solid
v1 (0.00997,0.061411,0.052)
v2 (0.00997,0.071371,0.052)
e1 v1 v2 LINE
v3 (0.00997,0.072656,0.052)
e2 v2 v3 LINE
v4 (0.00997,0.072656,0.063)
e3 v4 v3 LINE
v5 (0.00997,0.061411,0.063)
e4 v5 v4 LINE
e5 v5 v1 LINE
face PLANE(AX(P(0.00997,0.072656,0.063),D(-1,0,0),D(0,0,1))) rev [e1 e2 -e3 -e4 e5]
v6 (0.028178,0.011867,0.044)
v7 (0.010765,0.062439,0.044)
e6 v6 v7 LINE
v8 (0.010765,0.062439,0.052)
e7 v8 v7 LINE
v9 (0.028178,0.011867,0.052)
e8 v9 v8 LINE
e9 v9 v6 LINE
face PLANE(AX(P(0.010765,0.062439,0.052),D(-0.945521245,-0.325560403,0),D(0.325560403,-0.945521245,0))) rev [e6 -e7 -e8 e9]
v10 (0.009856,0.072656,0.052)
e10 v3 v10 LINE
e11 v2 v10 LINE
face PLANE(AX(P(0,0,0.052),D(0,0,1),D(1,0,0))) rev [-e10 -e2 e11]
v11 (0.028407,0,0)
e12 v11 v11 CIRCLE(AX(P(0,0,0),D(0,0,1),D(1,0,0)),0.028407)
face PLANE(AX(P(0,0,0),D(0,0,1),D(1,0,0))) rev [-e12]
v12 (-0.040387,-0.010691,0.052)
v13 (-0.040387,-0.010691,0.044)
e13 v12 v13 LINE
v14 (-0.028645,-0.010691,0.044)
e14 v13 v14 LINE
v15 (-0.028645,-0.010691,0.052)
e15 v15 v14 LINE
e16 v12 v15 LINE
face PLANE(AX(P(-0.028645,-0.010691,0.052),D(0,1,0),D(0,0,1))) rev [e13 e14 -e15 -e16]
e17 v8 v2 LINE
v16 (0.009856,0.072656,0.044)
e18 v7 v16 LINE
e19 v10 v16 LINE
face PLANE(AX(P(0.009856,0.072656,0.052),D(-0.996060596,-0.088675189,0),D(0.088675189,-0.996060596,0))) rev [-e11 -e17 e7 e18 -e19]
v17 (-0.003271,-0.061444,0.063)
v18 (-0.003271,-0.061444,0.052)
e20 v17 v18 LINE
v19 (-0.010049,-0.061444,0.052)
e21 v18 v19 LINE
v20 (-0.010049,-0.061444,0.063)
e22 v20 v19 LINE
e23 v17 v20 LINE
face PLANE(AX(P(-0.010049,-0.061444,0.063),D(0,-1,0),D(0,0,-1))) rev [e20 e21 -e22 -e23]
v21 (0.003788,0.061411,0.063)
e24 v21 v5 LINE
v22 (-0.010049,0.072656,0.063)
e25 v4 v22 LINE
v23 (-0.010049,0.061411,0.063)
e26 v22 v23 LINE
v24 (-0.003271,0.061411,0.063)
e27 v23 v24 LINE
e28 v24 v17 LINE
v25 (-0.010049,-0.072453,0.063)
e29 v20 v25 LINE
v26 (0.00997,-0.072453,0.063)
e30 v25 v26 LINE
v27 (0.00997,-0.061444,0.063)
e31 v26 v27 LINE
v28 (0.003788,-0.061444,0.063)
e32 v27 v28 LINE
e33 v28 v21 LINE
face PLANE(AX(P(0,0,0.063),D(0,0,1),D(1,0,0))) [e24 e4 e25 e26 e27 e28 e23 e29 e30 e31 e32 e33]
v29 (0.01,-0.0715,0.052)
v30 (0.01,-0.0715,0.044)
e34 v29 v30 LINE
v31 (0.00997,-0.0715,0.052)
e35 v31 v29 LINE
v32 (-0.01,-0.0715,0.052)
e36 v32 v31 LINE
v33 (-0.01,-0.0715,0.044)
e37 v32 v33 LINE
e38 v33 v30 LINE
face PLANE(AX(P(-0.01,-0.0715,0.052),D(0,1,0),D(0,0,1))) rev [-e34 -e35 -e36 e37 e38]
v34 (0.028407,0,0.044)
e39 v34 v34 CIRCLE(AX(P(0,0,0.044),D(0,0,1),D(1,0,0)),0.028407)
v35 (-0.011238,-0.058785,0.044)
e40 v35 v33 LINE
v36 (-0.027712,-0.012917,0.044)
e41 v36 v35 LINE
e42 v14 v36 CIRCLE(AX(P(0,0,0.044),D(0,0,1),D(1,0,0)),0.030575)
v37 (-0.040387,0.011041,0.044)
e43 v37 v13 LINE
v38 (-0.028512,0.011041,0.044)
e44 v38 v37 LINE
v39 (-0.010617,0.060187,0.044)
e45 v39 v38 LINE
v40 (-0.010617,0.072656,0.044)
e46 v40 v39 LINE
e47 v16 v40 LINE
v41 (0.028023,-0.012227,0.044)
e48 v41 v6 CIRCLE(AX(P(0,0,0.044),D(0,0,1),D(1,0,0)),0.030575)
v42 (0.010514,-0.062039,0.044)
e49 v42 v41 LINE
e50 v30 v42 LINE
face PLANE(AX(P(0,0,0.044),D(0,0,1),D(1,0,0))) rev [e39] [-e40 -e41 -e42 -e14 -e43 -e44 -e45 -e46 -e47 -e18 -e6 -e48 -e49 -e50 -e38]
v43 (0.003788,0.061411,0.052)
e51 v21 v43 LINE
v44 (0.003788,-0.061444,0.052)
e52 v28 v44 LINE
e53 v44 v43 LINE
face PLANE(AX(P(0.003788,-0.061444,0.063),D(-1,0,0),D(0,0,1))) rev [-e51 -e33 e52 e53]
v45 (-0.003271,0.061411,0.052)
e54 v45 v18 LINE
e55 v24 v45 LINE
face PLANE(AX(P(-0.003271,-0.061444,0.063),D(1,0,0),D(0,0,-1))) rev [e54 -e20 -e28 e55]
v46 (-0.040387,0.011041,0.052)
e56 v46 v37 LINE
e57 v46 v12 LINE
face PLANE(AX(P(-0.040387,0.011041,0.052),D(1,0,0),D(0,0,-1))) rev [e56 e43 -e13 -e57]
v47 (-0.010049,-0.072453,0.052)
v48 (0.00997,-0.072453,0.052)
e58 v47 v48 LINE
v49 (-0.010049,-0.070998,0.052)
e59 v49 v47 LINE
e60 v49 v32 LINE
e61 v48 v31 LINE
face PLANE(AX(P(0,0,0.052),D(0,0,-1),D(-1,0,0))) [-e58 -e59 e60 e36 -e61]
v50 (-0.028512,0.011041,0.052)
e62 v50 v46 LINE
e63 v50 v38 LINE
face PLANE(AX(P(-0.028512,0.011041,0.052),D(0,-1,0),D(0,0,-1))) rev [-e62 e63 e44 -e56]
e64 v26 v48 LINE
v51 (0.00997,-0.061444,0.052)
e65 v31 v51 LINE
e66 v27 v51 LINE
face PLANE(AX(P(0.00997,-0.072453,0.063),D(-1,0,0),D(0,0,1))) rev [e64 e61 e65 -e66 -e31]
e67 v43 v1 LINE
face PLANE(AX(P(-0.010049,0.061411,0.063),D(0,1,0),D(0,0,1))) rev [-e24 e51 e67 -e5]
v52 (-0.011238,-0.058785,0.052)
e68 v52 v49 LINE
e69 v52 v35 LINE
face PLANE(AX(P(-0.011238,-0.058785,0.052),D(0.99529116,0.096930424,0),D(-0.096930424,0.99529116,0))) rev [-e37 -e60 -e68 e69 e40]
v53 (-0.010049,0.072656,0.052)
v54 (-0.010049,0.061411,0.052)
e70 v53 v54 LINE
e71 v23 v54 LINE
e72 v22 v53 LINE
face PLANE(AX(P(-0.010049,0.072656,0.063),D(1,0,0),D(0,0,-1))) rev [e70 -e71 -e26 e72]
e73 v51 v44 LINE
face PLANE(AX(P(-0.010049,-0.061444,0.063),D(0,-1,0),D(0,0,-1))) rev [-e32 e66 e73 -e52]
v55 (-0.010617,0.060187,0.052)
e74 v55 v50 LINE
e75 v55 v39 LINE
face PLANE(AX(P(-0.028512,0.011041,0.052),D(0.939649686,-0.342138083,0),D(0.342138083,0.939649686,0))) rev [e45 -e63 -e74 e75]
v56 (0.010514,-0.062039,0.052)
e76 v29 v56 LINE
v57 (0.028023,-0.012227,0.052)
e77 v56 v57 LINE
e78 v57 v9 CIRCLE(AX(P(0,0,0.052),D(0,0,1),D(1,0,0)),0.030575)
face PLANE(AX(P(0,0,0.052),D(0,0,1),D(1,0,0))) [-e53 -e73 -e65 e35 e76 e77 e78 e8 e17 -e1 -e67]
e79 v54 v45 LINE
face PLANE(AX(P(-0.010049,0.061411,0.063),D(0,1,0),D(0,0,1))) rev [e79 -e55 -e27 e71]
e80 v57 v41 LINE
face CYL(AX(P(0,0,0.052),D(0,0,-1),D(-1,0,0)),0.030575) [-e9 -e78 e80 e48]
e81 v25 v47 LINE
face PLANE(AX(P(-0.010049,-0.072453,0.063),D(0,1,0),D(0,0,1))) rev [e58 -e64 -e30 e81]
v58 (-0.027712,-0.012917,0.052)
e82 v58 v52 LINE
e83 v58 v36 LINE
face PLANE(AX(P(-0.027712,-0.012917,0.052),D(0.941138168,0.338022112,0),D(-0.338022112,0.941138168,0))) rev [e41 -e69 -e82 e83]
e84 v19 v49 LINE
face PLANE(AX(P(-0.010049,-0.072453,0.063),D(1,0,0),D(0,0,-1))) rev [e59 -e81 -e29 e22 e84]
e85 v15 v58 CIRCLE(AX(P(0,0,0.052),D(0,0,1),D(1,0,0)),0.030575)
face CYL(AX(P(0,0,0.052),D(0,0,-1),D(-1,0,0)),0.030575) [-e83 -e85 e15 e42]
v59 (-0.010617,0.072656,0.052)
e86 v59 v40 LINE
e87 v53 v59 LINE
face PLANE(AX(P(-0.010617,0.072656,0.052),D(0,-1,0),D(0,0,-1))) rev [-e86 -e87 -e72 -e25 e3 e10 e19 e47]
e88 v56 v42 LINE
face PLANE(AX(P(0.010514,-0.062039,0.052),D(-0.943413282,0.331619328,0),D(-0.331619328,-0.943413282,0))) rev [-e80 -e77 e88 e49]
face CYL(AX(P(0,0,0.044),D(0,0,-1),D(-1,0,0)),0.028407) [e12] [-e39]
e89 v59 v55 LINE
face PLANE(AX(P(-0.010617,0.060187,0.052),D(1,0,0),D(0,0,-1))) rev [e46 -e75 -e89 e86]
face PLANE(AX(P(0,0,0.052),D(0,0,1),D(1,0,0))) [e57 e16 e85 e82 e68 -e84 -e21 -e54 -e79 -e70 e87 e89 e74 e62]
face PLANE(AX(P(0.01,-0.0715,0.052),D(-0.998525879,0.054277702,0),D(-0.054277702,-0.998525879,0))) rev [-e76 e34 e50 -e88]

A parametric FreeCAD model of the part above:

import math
import FreeCAD as App
import Part
import Sketcher

V = App.Vector


def add_polygon(sketch, points):
    """Adds a closed chain of lines whose ends are joined by coincident constraints."""
    first, n = sketch.GeometryCount, len(points)
    for a, b in zip(points, points[1:] + points[:1]):
        sketch.addGeometry(Part.LineSegment(App.Vector(*a, 0), App.Vector(*b, 0)), False)
    for i in range(n):
        sketch.addConstraint(Sketcher.Constraint("Coincident", first + i, 2, first + (i + 1) % n, 1))

doc = App.newDocument("Part")
body = doc.addObject("PartDesign::Body", "Body")

# Sketch on XY plane
sketch1 = doc.addObject("Sketcher::SketchObject", "Sketch")
body.addObject(sketch1)
sketch1.AttachmentSupport = (doc.XY_Plane, [""])
sketch1.MapMode = "FlatFace"
sketch1.addGeometry(Part.Circle(V(0, 0, 0), V(0, 0, 1), 0.028), False)
sketch1.addConstraint([
    Sketcher.Constraint("Coincident", 0, 3, -1, 1),
    Sketcher.Constraint("Diameter", 0, 0.056813),
])
pad1 = doc.addObject("PartDesign::Pad", "Pad")
body.addObject(pad1)
pad1.Profile = sketch1
pad1.Length = 0.044

# Sketch on XY plane
sketch2 = doc.addObject("Sketcher::SketchObject", "Sketch001")
body.addObject(sketch2)
sketch2.AttachmentSupport = (doc.XY_Plane, [""])
sketch2.MapMode = "FlatFace"
sketch2.AttachmentOffset = App.Placement(V(0, 0, 0.044), App.Rotation())
sketch2.addGeometry([
    Part.LineSegment(V(-0.0106, 0.0602, 0), V(-0.0285, 0.011, 0)),  # 0
    Part.LineSegment(V(-0.0285, 0.011, 0), V(-0.0404, 0.011, 0)),  # 1
    Part.LineSegment(V(-0.0404, 0.011, 0), V(-0.0404, -0.0107, 0)),  # 2
    Part.LineSegment(V(-0.0404, -0.0107, 0), V(-0.0286, -0.0107, 0)),  # 3
    Part.ArcOfCircle(Part.Circle(V(0, 0, 0), V(0, 0, 1), 0.0306), math.radians(-159.53), math.radians(-155.01)),  # 4
    Part.LineSegment(V(-0.0277, -0.0129, 0), V(-0.0112, -0.0588, 0)),  # 5
    Part.LineSegment(V(-0.0112, -0.0588, 0), V(-0.01, -0.0715, 0)),  # 6
    Part.LineSegment(V(-0.01, -0.0715, 0), V(0.01, -0.0715, 0)),  # 7
    Part.LineSegment(V(0.01, -0.0715, 0), V(0.0105, -0.062, 0)),  # 8
    Part.LineSegment(V(0.0105, -0.062, 0), V(0.028, -0.0122, 0)),  # 9
    Part.ArcOfCircle(Part.Circle(V(0, 0, 0), V(0, 0, 1), 0.0306), math.radians(-24), math.radians(23)),  # 10
    Part.LineSegment(V(0.0282, 0.0119, 0), V(0.0108, 0.0624, 0)),  # 11
    Part.LineSegment(V(0.0108, 0.0624, 0), V(0.0099, 0.0727, 0)),  # 12
    Part.LineSegment(V(0.0099, 0.0727, 0), V(-0.0106, 0.0727, 0)),  # 13
    Part.LineSegment(V(-0.0106, 0.0727, 0), V(-0.0106, 0.0602, 0)),  # 14
], False)
sketch2.addConstraint([
    Sketcher.Constraint("Coincident", 0, 2, 1, 1),
    Sketcher.Constraint("Coincident", 1, 2, 2, 1),
    Sketcher.Constraint("Coincident", 2, 2, 3, 1),
    Sketcher.Constraint("Coincident", 3, 2, 4, 1),
    Sketcher.Constraint("Coincident", 4, 2, 5, 1),
    Sketcher.Constraint("Coincident", 5, 2, 6, 1),
    Sketcher.Constraint("Coincident", 6, 2, 7, 1),
    Sketcher.Constraint("Coincident", 7, 2, 8, 1),
    Sketcher.Constraint("Coincident", 8, 2, 9, 1),
    Sketcher.Constraint("Coincident", 9, 2, 10, 1),
    Sketcher.Constraint("Coincident", 10, 2, 11, 1),
    Sketcher.Constraint("Coincident", 11, 2, 12, 1),
    Sketcher.Constraint("Coincident", 12, 2, 13, 1),
    Sketcher.Constraint("Coincident", 13, 2, 14, 1),
    Sketcher.Constraint("Coincident", 14, 2, 0, 1),
    Sketcher.Constraint("Horizontal", 1),
    Sketcher.Constraint("Vertical", 2),
    Sketcher.Constraint("Horizontal", 3),
    Sketcher.Constraint("Horizontal", 7),
    Sketcher.Constraint("Horizontal", 13),
    Sketcher.Constraint("Vertical", 14),
    Sketcher.Constraint("Coincident", 4, 3, -1, 1),
    Sketcher.Constraint("Coincident", 10, 3, -1, 1),
    Sketcher.Constraint("Equal", 4, 10),
    Sketcher.Constraint("DistanceX", 7, 1, 7, 2, 0.02),
    Sketcher.Constraint("DistanceX", 6, 2, -1, 1, 0.01),
    Sketcher.Constraint("Radius", 4, 0.030575),
    Sketcher.Constraint("Distance", 9, 0.052799),
    Sketcher.Constraint("DistanceX", 3, 1, 3, 2, 0.011742),
    Sketcher.Constraint("DistanceY", 2, 2, 2, 1, 0.021732),
    Sketcher.Constraint("DistanceY", 14, 2, 14, 1, 0.01247),
    Sketcher.Constraint("DistanceY", 6, 2, -1, 1, 0.0715),
    Sketcher.Constraint("DistanceX", 0, 2, 4, 2, 0.000799),
    Sketcher.Constraint("DistanceY", 0, 2, 11, 2, 0.051398),
    Sketcher.Constraint("DistanceX", 1, 2, 1, 1, 0.011875),
    Sketcher.Constraint("DistanceX", 13, 2, 13, 1, 0.020473),
    Sketcher.Constraint("DistanceX", 0, 2, -1, 1, 0.028512),
    Sketcher.Constraint("DistanceX", 5, 2, -1, 1, 0.011238),
    Sketcher.Constraint("DistanceY", 8, 2, -1, 1, 0.062039),
    Sketcher.Constraint("DistanceY", 5, 2, 4, 2, 0.045868),
    Sketcher.Constraint("DistanceX", 8, 2, 9, 2, 0.017509),
    Sketcher.Constraint("DistanceX", 0, 2, 10, 2, 0.05669),
    Sketcher.Constraint("DistanceX", 1, 2, 11, 2, 0.051152),
    Sketcher.Constraint("DistanceX", 12, 2, 11, 2, 0.00091),
    Sketcher.Constraint("DistanceY", 10, 2, 12, 2, 0.060789),
])
pad2 = doc.addObject("PartDesign::Pad", "Pad001")
body.addObject(pad2)
pad2.Profile = sketch2
pad2.Length = 0.008

# Sketch on XY plane
sketch3 = doc.addObject("Sketcher::SketchObject", "Sketch002")
body.addObject(sketch3)
sketch3.AttachmentSupport = (doc.XY_Plane, [""])
sketch3.MapMode = "FlatFace"
sketch3.AttachmentOffset = App.Placement(V(0, 0, 0.052), App.Rotation())
add_polygon(sketch3, [(-0.01, 0.073), (-0.01, 0.061), (0.01, 0.061), (0.01, 0.073)])  # lines 0-3
add_polygon(sketch3, [(-0.01, -0.061), (-0.01, -0.072), (0.01, -0.072), (0.01, -0.061)])  # lines 4-7
sketch3.addConstraint([
    Sketcher.Constraint("Vertical", 0),
    Sketcher.Constraint("Horizontal", 1),
    Sketcher.Constraint("Vertical", 2),
    Sketcher.Constraint("Horizontal", 3),
    Sketcher.Constraint("Vertical", 4),
    Sketcher.Constraint("Horizontal", 5),
    Sketcher.Constraint("Vertical", 6),
    Sketcher.Constraint("Horizontal", 7),
    Sketcher.Constraint("Vertical", 3, 2, 4, 2),
    Sketcher.Constraint("Vertical", 2, 2, 5, 2),
    Sketcher.Constraint("DistanceX", 1, 1, 1, 2, 0.020019),
    Sketcher.Constraint("DistanceY", 4, 2, 4, 1, 0.011009),
    Sketcher.Constraint("DistanceY", 6, 2, 2, 2, 0.1341),
    Sketcher.Constraint("DistanceY", 0, 2, 0, 1, 0.011246),
    Sketcher.Constraint("DistanceX", 0, 2, -1, 1, 0.010049),
    Sketcher.Constraint("DistanceY", -1, 1, 0, 2, 0.061411),
])
pad3 = doc.addObject("PartDesign::Pad", "Pad002")
body.addObject(pad3)
pad3.Profile = sketch3
pad3.Length = 0.011

# Sketch on XY plane
sketch4 = doc.addObject("Sketcher::SketchObject", "Sketch003")
body.addObject(sketch4)
sketch4.AttachmentSupport = (doc.XY_Plane, [""])
sketch4.MapMode = "FlatFace"
sketch4.AttachmentOffset = App.Placement(V(0, 0, 0.052), App.Rotation())
add_polygon(sketch4, [(-0.003, 0.061), (-0.003, -0.061), (0.004, -0.061), (0.004, 0.061)])  # lines 0-3
sketch4.addConstraint([
    Sketcher.Constraint("Vertical", 0),
    Sketcher.Constraint("Horizontal", 1),
    Sketcher.Constraint("Vertical", 2),
    Sketcher.Constraint("Horizontal", 3),
    Sketcher.Constraint("DistanceX", 1, 1, 1, 2, 0.00706),
    Sketcher.Constraint("DistanceY", 0, 2, 0, 1, 0.122854),
    Sketcher.Constraint("DistanceX", 0, 2, -1, 1, 0.003271),
    Sketcher.Constraint("DistanceY", -1, 1, 2, 2, 0.061411),
])
pad4 = doc.addObject("PartDesign::Pad", "Pad003")
body.addObject(pad4)
pad4.Profile = sketch4
pad4.Length = 0.011

doc.recompute()
